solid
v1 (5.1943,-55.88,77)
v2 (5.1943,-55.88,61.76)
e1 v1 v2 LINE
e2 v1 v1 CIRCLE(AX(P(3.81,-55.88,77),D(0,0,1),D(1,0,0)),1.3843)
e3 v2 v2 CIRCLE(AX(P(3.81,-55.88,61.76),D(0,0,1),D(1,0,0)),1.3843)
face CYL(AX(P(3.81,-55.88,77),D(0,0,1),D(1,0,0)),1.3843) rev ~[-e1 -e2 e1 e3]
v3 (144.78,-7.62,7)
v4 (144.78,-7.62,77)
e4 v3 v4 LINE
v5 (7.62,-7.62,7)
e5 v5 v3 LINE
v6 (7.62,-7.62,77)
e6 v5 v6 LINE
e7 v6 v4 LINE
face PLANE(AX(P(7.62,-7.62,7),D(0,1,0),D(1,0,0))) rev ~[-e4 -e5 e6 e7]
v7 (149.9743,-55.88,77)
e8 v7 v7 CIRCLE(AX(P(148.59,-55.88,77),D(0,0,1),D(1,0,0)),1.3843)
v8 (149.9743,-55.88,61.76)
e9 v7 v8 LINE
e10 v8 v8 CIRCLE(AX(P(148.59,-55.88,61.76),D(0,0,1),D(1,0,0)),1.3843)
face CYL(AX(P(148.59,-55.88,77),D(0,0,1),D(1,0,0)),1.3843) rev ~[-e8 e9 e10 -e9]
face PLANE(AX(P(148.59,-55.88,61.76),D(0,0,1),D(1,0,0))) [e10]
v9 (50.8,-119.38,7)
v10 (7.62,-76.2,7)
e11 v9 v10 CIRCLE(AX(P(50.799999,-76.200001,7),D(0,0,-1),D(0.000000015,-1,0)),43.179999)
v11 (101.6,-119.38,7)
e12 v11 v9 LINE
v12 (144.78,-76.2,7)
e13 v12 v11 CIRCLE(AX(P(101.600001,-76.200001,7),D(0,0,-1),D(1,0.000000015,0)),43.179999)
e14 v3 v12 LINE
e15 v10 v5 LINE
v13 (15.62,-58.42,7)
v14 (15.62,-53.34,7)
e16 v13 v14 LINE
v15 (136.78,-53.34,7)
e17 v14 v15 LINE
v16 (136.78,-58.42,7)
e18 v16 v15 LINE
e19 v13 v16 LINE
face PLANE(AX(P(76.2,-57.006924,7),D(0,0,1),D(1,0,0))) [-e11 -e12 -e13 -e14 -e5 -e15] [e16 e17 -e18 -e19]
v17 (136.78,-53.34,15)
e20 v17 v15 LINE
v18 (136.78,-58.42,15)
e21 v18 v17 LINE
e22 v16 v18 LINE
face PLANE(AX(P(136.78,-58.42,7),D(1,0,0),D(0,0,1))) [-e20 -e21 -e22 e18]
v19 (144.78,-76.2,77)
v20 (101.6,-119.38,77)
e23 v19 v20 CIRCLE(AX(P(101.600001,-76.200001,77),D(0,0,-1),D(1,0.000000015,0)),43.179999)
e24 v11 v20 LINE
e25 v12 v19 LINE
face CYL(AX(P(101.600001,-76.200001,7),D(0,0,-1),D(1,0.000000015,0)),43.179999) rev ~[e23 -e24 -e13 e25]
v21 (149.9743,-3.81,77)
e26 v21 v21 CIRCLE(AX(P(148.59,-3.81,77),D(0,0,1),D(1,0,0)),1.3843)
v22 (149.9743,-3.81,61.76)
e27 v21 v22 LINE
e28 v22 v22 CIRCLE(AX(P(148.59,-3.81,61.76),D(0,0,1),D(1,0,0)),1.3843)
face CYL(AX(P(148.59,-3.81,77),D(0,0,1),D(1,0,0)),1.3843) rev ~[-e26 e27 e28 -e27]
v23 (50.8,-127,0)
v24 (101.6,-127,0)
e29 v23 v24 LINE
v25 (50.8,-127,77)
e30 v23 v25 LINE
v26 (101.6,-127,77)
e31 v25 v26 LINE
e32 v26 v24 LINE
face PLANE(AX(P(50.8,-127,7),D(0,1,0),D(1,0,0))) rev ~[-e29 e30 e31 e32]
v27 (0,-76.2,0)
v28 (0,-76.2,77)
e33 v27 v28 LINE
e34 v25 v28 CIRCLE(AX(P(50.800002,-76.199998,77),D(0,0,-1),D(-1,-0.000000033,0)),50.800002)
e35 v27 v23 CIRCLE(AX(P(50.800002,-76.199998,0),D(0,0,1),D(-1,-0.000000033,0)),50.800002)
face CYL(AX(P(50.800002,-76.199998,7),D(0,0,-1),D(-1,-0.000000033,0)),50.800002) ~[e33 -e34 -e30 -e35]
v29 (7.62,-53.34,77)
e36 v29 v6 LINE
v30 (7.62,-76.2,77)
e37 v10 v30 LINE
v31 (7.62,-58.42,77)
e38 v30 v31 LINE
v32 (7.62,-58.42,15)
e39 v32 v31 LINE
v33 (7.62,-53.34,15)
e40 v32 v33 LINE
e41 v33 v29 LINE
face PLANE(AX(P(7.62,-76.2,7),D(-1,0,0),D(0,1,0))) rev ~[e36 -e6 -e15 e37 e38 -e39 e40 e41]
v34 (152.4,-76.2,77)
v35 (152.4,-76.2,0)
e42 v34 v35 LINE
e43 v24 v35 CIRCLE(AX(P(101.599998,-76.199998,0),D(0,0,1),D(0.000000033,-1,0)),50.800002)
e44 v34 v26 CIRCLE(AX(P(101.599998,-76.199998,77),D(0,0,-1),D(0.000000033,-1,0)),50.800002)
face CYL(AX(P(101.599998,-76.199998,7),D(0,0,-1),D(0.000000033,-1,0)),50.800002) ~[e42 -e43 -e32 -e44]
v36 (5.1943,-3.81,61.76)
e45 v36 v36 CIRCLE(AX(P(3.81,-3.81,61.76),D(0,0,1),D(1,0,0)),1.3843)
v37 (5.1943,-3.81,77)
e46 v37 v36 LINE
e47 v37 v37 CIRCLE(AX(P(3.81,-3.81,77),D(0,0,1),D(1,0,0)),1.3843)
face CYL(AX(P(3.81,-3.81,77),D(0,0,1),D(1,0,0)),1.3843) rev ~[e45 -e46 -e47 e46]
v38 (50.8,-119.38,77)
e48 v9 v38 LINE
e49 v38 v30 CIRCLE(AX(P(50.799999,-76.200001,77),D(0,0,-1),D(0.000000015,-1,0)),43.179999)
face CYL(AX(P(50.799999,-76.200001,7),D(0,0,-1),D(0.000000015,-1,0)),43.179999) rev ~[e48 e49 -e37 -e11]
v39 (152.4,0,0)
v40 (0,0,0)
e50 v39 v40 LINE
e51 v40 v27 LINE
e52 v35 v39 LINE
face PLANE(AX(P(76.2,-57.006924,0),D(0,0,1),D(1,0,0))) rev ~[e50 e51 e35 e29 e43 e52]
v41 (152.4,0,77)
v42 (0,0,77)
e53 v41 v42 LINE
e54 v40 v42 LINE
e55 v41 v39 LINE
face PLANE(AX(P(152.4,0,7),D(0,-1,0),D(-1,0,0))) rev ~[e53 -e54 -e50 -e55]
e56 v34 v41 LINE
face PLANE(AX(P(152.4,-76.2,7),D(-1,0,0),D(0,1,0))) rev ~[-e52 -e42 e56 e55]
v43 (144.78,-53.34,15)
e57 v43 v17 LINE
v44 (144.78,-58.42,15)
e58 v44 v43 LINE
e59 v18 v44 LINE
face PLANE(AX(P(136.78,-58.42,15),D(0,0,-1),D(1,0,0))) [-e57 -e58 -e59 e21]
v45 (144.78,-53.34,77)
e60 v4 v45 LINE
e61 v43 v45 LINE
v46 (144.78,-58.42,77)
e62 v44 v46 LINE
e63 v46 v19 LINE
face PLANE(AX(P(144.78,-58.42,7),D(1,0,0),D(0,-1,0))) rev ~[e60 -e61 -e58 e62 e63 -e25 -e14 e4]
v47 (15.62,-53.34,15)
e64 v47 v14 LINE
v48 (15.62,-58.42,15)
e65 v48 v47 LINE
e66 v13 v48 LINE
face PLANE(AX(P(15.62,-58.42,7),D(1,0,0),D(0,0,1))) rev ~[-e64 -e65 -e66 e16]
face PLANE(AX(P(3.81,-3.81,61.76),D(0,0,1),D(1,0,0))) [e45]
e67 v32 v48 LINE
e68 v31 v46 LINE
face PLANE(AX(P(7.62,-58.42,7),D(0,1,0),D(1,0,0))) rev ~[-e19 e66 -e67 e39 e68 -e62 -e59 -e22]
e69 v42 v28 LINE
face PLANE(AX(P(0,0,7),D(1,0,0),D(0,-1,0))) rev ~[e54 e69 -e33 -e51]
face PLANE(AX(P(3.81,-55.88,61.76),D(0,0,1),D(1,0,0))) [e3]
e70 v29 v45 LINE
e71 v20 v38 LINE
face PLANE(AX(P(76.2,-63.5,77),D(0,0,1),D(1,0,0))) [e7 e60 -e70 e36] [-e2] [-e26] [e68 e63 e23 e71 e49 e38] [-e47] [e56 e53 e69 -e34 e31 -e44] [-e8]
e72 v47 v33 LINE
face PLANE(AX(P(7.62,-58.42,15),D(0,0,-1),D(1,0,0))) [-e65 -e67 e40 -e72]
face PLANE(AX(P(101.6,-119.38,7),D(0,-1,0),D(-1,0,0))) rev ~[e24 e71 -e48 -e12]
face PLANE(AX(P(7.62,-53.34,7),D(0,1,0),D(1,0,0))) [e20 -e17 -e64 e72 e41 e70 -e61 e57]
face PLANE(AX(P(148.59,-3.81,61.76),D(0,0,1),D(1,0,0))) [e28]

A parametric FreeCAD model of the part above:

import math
import FreeCAD as App
import Part
import Sketcher
Q = App.Units.Quantity

doc = App.newDocument("Part")
body = doc.addObject("PartDesign::Body", "Body")

# Sketch on XY plane
sketch1 = body.newObject("Sketcher::SketchObject", "Sketch")
sketch1.AttachmentSupport = (doc.getObject("XY_Plane"), [""])
sketch1.MapMode = "FlatFace"
sketch1.addGeometry([
    Part.LineSegment(App.Vector(152, 0, 0), App.Vector(0, 0, 0)),  # 0
    Part.LineSegment(App.Vector(0, 0, 0), App.Vector(0, -76, 0)),  # 1
    Part.ArcOfCircle(Part.Circle(App.Vector(51, -76, 0), App.Vector(0, 0, 1), 51), math.radians(-180), math.radians(-90)),  # 2
    Part.LineSegment(App.Vector(51, -127, 0), App.Vector(102, -127, 0)),  # 3
    Part.ArcOfCircle(Part.Circle(App.Vector(102, -76, 0), App.Vector(0, 0, 1), 51), math.radians(-90), math.radians(0)),  # 4
    Part.LineSegment(App.Vector(152, -76, 0), App.Vector(152, 0, 0)),  # 5
], False)
sketch1.addConstraint([
    Sketcher.Constraint("Coincident", 0, 2, 1, 1),
    Sketcher.Constraint("Tangent", 1, 2, 2, 1),
    Sketcher.Constraint("Tangent", 2, 2, 3, 1),
    Sketcher.Constraint("Tangent", 3, 2, 4, 1),
    Sketcher.Constraint("Tangent", 4, 2, 5, 1),
    Sketcher.Constraint("Coincident", 5, 2, 0, 1),
    Sketcher.Constraint("Horizontal", 0),
    Sketcher.Constraint("Vertical", 1),
    Sketcher.Constraint("Horizontal", 3),
    Sketcher.Constraint("Vertical", 5),
    Sketcher.Constraint("Coincident", 0, 2, -1, 1),
    Sketcher.Constraint("Equal", 2, 4),
    Sketcher.Constraint("Radius", 2, Q("2.0000001 in")),
    Sketcher.Constraint("DistanceX", 0, 2, 0, 1, Q("6 in")),
    Sketcher.Constraint("DistanceY", 1, 2, 1, 1, Q("3 in")),
])
pad1 = body.newObject("PartDesign::Pad", "Pad")
pad1.Profile = sketch1
pad1.Length = 7

# Sketch on XY plane
sketch2 = body.newObject("Sketcher::SketchObject", "Sketch001")
sketch2.AttachmentSupport = (doc.getObject("XY_Plane"), [""])
sketch2.MapMode = "FlatFace"
sketch2.AttachmentOffset = App.Placement(App.Vector(0, 0, 7), App.Rotation())
sketch2.addGeometry([
    Part.LineSegment(App.Vector(152, 0, 0), App.Vector(0, 0, 0)),  # 0
    Part.LineSegment(App.Vector(0, 0, 0), App.Vector(0, -76, 0)),  # 1
    Part.ArcOfCircle(Part.Circle(App.Vector(51, -76, 0), App.Vector(0, 0, 1), 51), math.radians(-180), math.radians(-90)),  # 2
    Part.LineSegment(App.Vector(51, -127, 0), App.Vector(102, -127, 0)),  # 3
    Part.ArcOfCircle(Part.Circle(App.Vector(102, -76, 0), App.Vector(0, 0, 1), 51), math.radians(-90), math.radians(0)),  # 4
    Part.LineSegment(App.Vector(152, -76, 0), App.Vector(152, 0, 0)),  # 5
    Part.LineSegment(App.Vector(8, -76, 0), App.Vector(8, -58, 0)),  # 6
    Part.LineSegment(App.Vector(8, -58, 0), App.Vector(145, -58, 0)),  # 7
    Part.LineSegment(App.Vector(145, -58, 0), App.Vector(145, -76, 0)),  # 8
    Part.ArcOfCircle(Part.Circle(App.Vector(102, -76, 0), App.Vector(0, 0, 1), 43), math.radians(-90), math.radians(0)),  # 9
    Part.LineSegment(App.Vector(102, -119, 0), App.Vector(51, -119, 0)),  # 10
    Part.ArcOfCircle(Part.Circle(App.Vector(51, -76, 0), App.Vector(0, 0, 1), 43), math.radians(180), math.radians(270)),  # 11
    Part.LineSegment(App.Vector(8, -53, 0), App.Vector(8, -8, 0)),  # 12
    Part.LineSegment(App.Vector(8, -8, 0), App.Vector(145, -8, 0)),  # 13
    Part.LineSegment(App.Vector(145, -8, 0), App.Vector(145, -53, 0)),  # 14
    Part.LineSegment(App.Vector(145, -53, 0), App.Vector(8, -53, 0)),  # 15
], False)
sketch2.addConstraint([
    Sketcher.Constraint("Coincident", 0, 2, 1, 1),
    Sketcher.Constraint("Tangent", 1, 2, 2, 1),
    Sketcher.Constraint("Tangent", 2, 2, 3, 1),
    Sketcher.Constraint("Tangent", 3, 2, 4, 1),
    Sketcher.Constraint("Tangent", 4, 2, 5, 1),
    Sketcher.Constraint("Coincident", 5, 2, 0, 1),
    Sketcher.Constraint("Coincident", 6, 2, 7, 1),
    Sketcher.Constraint("Coincident", 7, 2, 8, 1),
    Sketcher.Constraint("Tangent", 8, 2, 9, 2),
    Sketcher.Constraint("Tangent", 9, 1, 10, 1),
    Sketcher.Constraint("Tangent", 10, 2, 11, 2),
    Sketcher.Constraint("Tangent", 11, 1, 6, 1),
    Sketcher.Constraint("Coincident", 12, 2, 13, 1),
    Sketcher.Constraint("Coincident", 13, 2, 14, 1),
    Sketcher.Constraint("Coincident", 14, 2, 15, 1),
    Sketcher.Constraint("Coincident", 15, 2, 12, 1),
    Sketcher.Constraint("Horizontal", 0),
    Sketcher.Constraint("Vertical", 1),
    Sketcher.Constraint("Horizontal", 3),
    Sketcher.Constraint("Vertical", 5),
    Sketcher.Constraint("Vertical", 6),
    Sketcher.Constraint("Horizontal", 7),
    Sketcher.Constraint("Vertical", 8),
    Sketcher.Constraint("Horizontal", 10),
    Sketcher.Constraint("Vertical", 12),
    Sketcher.Constraint("Horizontal", 13),
    Sketcher.Constraint("Vertical", 14),
    Sketcher.Constraint("Horizontal", 15),
    Sketcher.Constraint("Coincident", 0, 2, -1, 1),
    Sketcher.Constraint("Coincident", 9, 3, 4, 3),
    Sketcher.Constraint("Coincident", 11, 3, 2, 3),
    Sketcher.Constraint("Equal", 2, 4),
    Sketcher.Constraint("Vertical", 11, 1, 12, 2),
    Sketcher.Constraint("Vertical", 8, 2, 13, 2),
    Sketcher.Constraint("Radius", 2, Q("2.0000001 in")),
    Sketcher.Constraint("Radius", 9, Q("1.7 in")),
    Sketcher.Constraint("DistanceX", 0, 2, 0, 1, Q("6 in")),
    Sketcher.Constraint("DistanceY", 1, 2, 1, 1, Q("3 in")),
    Sketcher.Constraint("DistanceY", 6, 1, 6, 2, Q("0.7 in")),
    Sketcher.Constraint("DistanceY", 12, 1, 12, 2, Q("1.8 in")),
    Sketcher.Constraint("DistanceY", 6, 2, 12, 2, Q("2 in")),
])
pad2 = body.newObject("PartDesign::Pad", "Pad001")
pad2.Profile = sketch2
pad2.Length = 100

# Sketch on XY plane
sketch3 = body.newObject("Sketcher::SketchObject", "Sketch002")
sketch3.AttachmentSupport = (doc.getObject("XY_Plane"), [""])
sketch3.MapMode = "FlatFace"
sketch3.AttachmentOffset = App.Placement(App.Vector(0, 0, 107), App.Rotation())
sketch3.addGeometry([
    Part.LineSegment(App.Vector(0, 0, 0), App.Vector(0, -127, 0)),
    Part.LineSegment(App.Vector(0, -127, 0), App.Vector(152, -127, 0)),
    Part.LineSegment(App.Vector(152, -127, 0), App.Vector(152, 0, 0)),
    Part.LineSegment(App.Vector(152, 0, 0), App.Vector(0, 0, 0)),
], False)
sketch3.addConstraint([
    Sketcher.Constraint("Coincident", 0, 2, 1, 1),
    Sketcher.Constraint("Coincident", 1, 2, 2, 1),
    Sketcher.Constraint("Coincident", 2, 2, 3, 1),
    Sketcher.Constraint("Coincident", 3, 2, 0, 1),
    Sketcher.Constraint("Vertical", 0),
    Sketcher.Constraint("Horizontal", 1),
    Sketcher.Constraint("Vertical", 2),
    Sketcher.Constraint("Horizontal", 3),
    Sketcher.Constraint("Coincident", 3, 2, -1, 1),
    Sketcher.Constraint("DistanceX", 1, 1, 1, 2, Q("6 in")),
    Sketcher.Constraint("DistanceY", 0, 2, 0, 1, Q("5 in")),
])
pocket1 = body.newObject("PartDesign::Pocket", "Pocket")
pocket1.Profile = sketch3
pocket1.Length = 30

# Sketch on XZ plane
sketch4 = body.newObject("Sketcher::SketchObject", "Sketch003")
sketch4.AttachmentSupport = (doc.getObject("XZ_Plane"), [""])
sketch4.MapMode = "FlatFace"
sketch4.AttachmentOffset = App.Placement(App.Vector(0, 0, 2.3 * 25.4), App.Rotation())
sketch4.addGeometry([
    Part.LineSegment(App.Vector(8, 15, 0), App.Vector(8, 7, 0)),  # 0
    Part.LineSegment(App.Vector(8, 7, 0), App.Vector(16, 7, 0)),  # 1
    Part.LineSegment(App.Vector(16, 7, 0), App.Vector(16, 15, 0)),  # 2
    Part.LineSegment(App.Vector(16, 15, 0), App.Vector(8, 15, 0)),  # 3
    Part.LineSegment(App.Vector(137, 15, 0), App.Vector(137, 7, 0)),  # 4
    Part.LineSegment(App.Vector(137, 7, 0), App.Vector(145, 7, 0)),  # 5
    Part.LineSegment(App.Vector(145, 7, 0), App.Vector(145, 15, 0)),  # 6
    Part.LineSegment(App.Vector(145, 15, 0), App.Vector(137, 15, 0)),  # 7
], False)
sketch4.addConstraint([
    Sketcher.Constraint("Coincident", 0, 2, 1, 1),
    Sketcher.Constraint("Coincident", 1, 2, 2, 1),
    Sketcher.Constraint("Coincident", 2, 2, 3, 1),
    Sketcher.Constraint("Coincident", 3, 2, 0, 1),
    Sketcher.Constraint("Coincident", 4, 2, 5, 1),
    Sketcher.Constraint("Coincident", 5, 2, 6, 1),
    Sketcher.Constraint("Coincident", 6, 2, 7, 1),
    Sketcher.Constraint("Coincident", 7, 2, 4, 1),
    Sketcher.Constraint("Vertical", 0),
    Sketcher.Constraint("Horizontal", 1),
    Sketcher.Constraint("Vertical", 2),
    Sketcher.Constraint("Horizontal", 3),
    Sketcher.Constraint("Vertical", 4),
    Sketcher.Constraint("Horizontal", 5),
    Sketcher.Constraint("Vertical", 6),
    Sketcher.Constraint("Horizontal", 7),
    Sketcher.Constraint("Horizontal", 1, 2, 4, 2),
    Sketcher.Constraint("Horizontal", 3, 2, 6, 2),
    Sketcher.Constraint("Equal", 3, 5),
    Sketcher.Constraint("Equal", 7, 0),
    Sketcher.Constraint("DistanceX", -1, 1, 0, 2, Q("0.3 in")),
    Sketcher.Constraint("DistanceX", -1, 1, 5, 2, Q("5.7 in")),
    Sketcher.Constraint("DistanceX", 1, 1, 1, 2, 8.0),
    Sketcher.Constraint("DistanceY", -1, 1, 0, 2, 7.0),
])
pocket2 = body.newObject("PartDesign::Pocket", "Pocket001")
pocket2.Profile = sketch4
pocket2.Length = Q("1 in")

# Sketch on XY plane
sketch5 = body.newObject("Sketcher::SketchObject", "Sketch004")
sketch5.AttachmentSupport = (doc.getObject("XY_Plane"), [""])
sketch5.MapMode = "FlatFace"
sketch5.AttachmentOffset = App.Placement(App.Vector(0, 0, 77), App.Rotation())
sketch5.addGeometry([
    Part.Circle(App.Vector(3.8, -3.8, 0), App.Vector(0, 0, 1), 1.4),
    Part.Circle(App.Vector(3.8, -55.9, 0), App.Vector(0, 0, 1), 1.4),
    Part.Circle(App.Vector(148.6, -3.8, 0), App.Vector(0, 0, 1), 1.4),
    Part.Circle(App.Vector(148.6, -55.9, 0), App.Vector(0, 0, 1), 1.4),
], False)
sketch5.addConstraint([
    Sketcher.Constraint("Equal", 0, 1),
    Sketcher.Constraint("Equal", 1, 2),
    Sketcher.Constraint("Equal", 2, 3),
    Sketcher.Constraint("Horizontal", 0, 3, 2, 3),
    Sketcher.Constraint("Horizontal", 1, 3, 3, 3),
    Sketcher.Constraint("Vertical", 0, 3, 1, 3),
    Sketcher.Constraint("Vertical", 2, 3, 3, 3),
    Sketcher.Constraint("Diameter", 0, Q("0.109 in")),
    Sketcher.Constraint("DistanceY", 1, 3, -1, 1, Q("2.2 in")),
    Sketcher.Constraint("DistanceX", 0, 3, 2, 3, Q("5.7 in")),
    Sketcher.Constraint("DistanceX", -1, 1, 0, 3, Q("0.15 in")),
    Sketcher.Constraint("DistanceY", 0, 3, -1, 1, Q("0.15 in")),
])
pocket3 = body.newObject("PartDesign::Pocket", "Pocket002")
pocket3.Profile = sketch5
pocket3.Length = Q("0.6 in")

doc.recompute()
